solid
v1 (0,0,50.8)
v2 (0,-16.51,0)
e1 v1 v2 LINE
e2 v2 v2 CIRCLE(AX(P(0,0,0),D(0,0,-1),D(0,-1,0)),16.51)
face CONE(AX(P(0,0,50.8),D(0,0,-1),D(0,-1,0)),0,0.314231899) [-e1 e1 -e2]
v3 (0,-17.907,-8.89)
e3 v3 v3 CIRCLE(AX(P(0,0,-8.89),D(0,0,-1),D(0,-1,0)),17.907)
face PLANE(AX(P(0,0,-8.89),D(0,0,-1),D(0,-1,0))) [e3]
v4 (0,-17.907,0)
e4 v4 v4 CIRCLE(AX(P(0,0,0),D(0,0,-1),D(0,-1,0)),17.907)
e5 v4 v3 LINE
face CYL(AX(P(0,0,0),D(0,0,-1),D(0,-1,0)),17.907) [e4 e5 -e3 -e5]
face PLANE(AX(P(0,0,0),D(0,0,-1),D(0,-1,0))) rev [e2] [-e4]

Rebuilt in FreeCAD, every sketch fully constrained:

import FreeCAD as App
import Part
import Sketcher
Q = App.Units.Quantity

doc = App.newDocument("Part")
body = doc.addObject("PartDesign::Body", "Body")

sketch1 = doc.addObject("Sketcher::SketchObject", "Sketch")
body.addObject(sketch1)
sketch1.AttachmentSupport = (doc.YZ_Plane, [""])
sketch1.MapMode = "FlatFace"
sketch1.addGeometry(Part.LineSegment(App.Vector(0, 50.8, 0), App.Vector(-16.51, 0, 0)), False)
sketch1.addGeometry(Part.LineSegment(App.Vector(-16.51, 0, 0), App.Vector(-17.907, 0, 0)), False)
sketch1.addGeometry(Part.LineSegment(App.Vector(-17.907, 0, 0), App.Vector(-17.907, -8.89, 0)), False)
sketch1.addGeometry(Part.LineSegment(App.Vector(-17.907, -8.89, 0), App.Vector(0, -8.89, 0)), False)
sketch1.addGeometry(Part.LineSegment(App.Vector(0, -8.89, 0), App.Vector(0, 50.8, 0)), False)
sketch1.addConstraint(Sketcher.Constraint("Coincident", 0, 2, 1, 1))
sketch1.addConstraint(Sketcher.Constraint("Coincident", 1, 2, 2, 1))
sketch1.addConstraint(Sketcher.Constraint("Coincident", 2, 2, 3, 1))
sketch1.addConstraint(Sketcher.Constraint("Coincident", 3, 2, 4, 1))
sketch1.addConstraint(Sketcher.Constraint("Coincident", 4, 2, 0, 1))
sketch1.addConstraint(Sketcher.Constraint("Horizontal", 1))
sketch1.addConstraint(Sketcher.Constraint("Vertical", 2))
sketch1.addConstraint(Sketcher.Constraint("Horizontal", 3))
sketch1.addConstraint(Sketcher.Constraint("Vertical", 4))
sketch1.addConstraint(Sketcher.Constraint("PointOnObject", 0, 2, -1))
sketch1.addConstraint(Sketcher.Constraint("PointOnObject", 3, 2, -2))
sketch1.addConstraint(Sketcher.Constraint("DistanceY", -1, 1, 4, 2, Q("2 in")))
sketch1.addConstraint(Sketcher.Constraint("DistanceY", 2, 2, 2, 1, Q("0.35 in")))
sketch1.addConstraint(Sketcher.Constraint("DistanceX", 1, 2, 1, 1, Q("0.055 in")))
sketch1.addConstraint(Sketcher.Constraint("DistanceX", 3, 1, 3, 2, Q("0.705 in")))
revolution = doc.addObject("PartDesign::Revolution", "Revolution")
body.addObject(revolution)
revolution.Profile = sketch1
revolution.ReferenceAxis = (sketch1, ["V_Axis"])
revolution.Angle = 360

doc.recompute()
